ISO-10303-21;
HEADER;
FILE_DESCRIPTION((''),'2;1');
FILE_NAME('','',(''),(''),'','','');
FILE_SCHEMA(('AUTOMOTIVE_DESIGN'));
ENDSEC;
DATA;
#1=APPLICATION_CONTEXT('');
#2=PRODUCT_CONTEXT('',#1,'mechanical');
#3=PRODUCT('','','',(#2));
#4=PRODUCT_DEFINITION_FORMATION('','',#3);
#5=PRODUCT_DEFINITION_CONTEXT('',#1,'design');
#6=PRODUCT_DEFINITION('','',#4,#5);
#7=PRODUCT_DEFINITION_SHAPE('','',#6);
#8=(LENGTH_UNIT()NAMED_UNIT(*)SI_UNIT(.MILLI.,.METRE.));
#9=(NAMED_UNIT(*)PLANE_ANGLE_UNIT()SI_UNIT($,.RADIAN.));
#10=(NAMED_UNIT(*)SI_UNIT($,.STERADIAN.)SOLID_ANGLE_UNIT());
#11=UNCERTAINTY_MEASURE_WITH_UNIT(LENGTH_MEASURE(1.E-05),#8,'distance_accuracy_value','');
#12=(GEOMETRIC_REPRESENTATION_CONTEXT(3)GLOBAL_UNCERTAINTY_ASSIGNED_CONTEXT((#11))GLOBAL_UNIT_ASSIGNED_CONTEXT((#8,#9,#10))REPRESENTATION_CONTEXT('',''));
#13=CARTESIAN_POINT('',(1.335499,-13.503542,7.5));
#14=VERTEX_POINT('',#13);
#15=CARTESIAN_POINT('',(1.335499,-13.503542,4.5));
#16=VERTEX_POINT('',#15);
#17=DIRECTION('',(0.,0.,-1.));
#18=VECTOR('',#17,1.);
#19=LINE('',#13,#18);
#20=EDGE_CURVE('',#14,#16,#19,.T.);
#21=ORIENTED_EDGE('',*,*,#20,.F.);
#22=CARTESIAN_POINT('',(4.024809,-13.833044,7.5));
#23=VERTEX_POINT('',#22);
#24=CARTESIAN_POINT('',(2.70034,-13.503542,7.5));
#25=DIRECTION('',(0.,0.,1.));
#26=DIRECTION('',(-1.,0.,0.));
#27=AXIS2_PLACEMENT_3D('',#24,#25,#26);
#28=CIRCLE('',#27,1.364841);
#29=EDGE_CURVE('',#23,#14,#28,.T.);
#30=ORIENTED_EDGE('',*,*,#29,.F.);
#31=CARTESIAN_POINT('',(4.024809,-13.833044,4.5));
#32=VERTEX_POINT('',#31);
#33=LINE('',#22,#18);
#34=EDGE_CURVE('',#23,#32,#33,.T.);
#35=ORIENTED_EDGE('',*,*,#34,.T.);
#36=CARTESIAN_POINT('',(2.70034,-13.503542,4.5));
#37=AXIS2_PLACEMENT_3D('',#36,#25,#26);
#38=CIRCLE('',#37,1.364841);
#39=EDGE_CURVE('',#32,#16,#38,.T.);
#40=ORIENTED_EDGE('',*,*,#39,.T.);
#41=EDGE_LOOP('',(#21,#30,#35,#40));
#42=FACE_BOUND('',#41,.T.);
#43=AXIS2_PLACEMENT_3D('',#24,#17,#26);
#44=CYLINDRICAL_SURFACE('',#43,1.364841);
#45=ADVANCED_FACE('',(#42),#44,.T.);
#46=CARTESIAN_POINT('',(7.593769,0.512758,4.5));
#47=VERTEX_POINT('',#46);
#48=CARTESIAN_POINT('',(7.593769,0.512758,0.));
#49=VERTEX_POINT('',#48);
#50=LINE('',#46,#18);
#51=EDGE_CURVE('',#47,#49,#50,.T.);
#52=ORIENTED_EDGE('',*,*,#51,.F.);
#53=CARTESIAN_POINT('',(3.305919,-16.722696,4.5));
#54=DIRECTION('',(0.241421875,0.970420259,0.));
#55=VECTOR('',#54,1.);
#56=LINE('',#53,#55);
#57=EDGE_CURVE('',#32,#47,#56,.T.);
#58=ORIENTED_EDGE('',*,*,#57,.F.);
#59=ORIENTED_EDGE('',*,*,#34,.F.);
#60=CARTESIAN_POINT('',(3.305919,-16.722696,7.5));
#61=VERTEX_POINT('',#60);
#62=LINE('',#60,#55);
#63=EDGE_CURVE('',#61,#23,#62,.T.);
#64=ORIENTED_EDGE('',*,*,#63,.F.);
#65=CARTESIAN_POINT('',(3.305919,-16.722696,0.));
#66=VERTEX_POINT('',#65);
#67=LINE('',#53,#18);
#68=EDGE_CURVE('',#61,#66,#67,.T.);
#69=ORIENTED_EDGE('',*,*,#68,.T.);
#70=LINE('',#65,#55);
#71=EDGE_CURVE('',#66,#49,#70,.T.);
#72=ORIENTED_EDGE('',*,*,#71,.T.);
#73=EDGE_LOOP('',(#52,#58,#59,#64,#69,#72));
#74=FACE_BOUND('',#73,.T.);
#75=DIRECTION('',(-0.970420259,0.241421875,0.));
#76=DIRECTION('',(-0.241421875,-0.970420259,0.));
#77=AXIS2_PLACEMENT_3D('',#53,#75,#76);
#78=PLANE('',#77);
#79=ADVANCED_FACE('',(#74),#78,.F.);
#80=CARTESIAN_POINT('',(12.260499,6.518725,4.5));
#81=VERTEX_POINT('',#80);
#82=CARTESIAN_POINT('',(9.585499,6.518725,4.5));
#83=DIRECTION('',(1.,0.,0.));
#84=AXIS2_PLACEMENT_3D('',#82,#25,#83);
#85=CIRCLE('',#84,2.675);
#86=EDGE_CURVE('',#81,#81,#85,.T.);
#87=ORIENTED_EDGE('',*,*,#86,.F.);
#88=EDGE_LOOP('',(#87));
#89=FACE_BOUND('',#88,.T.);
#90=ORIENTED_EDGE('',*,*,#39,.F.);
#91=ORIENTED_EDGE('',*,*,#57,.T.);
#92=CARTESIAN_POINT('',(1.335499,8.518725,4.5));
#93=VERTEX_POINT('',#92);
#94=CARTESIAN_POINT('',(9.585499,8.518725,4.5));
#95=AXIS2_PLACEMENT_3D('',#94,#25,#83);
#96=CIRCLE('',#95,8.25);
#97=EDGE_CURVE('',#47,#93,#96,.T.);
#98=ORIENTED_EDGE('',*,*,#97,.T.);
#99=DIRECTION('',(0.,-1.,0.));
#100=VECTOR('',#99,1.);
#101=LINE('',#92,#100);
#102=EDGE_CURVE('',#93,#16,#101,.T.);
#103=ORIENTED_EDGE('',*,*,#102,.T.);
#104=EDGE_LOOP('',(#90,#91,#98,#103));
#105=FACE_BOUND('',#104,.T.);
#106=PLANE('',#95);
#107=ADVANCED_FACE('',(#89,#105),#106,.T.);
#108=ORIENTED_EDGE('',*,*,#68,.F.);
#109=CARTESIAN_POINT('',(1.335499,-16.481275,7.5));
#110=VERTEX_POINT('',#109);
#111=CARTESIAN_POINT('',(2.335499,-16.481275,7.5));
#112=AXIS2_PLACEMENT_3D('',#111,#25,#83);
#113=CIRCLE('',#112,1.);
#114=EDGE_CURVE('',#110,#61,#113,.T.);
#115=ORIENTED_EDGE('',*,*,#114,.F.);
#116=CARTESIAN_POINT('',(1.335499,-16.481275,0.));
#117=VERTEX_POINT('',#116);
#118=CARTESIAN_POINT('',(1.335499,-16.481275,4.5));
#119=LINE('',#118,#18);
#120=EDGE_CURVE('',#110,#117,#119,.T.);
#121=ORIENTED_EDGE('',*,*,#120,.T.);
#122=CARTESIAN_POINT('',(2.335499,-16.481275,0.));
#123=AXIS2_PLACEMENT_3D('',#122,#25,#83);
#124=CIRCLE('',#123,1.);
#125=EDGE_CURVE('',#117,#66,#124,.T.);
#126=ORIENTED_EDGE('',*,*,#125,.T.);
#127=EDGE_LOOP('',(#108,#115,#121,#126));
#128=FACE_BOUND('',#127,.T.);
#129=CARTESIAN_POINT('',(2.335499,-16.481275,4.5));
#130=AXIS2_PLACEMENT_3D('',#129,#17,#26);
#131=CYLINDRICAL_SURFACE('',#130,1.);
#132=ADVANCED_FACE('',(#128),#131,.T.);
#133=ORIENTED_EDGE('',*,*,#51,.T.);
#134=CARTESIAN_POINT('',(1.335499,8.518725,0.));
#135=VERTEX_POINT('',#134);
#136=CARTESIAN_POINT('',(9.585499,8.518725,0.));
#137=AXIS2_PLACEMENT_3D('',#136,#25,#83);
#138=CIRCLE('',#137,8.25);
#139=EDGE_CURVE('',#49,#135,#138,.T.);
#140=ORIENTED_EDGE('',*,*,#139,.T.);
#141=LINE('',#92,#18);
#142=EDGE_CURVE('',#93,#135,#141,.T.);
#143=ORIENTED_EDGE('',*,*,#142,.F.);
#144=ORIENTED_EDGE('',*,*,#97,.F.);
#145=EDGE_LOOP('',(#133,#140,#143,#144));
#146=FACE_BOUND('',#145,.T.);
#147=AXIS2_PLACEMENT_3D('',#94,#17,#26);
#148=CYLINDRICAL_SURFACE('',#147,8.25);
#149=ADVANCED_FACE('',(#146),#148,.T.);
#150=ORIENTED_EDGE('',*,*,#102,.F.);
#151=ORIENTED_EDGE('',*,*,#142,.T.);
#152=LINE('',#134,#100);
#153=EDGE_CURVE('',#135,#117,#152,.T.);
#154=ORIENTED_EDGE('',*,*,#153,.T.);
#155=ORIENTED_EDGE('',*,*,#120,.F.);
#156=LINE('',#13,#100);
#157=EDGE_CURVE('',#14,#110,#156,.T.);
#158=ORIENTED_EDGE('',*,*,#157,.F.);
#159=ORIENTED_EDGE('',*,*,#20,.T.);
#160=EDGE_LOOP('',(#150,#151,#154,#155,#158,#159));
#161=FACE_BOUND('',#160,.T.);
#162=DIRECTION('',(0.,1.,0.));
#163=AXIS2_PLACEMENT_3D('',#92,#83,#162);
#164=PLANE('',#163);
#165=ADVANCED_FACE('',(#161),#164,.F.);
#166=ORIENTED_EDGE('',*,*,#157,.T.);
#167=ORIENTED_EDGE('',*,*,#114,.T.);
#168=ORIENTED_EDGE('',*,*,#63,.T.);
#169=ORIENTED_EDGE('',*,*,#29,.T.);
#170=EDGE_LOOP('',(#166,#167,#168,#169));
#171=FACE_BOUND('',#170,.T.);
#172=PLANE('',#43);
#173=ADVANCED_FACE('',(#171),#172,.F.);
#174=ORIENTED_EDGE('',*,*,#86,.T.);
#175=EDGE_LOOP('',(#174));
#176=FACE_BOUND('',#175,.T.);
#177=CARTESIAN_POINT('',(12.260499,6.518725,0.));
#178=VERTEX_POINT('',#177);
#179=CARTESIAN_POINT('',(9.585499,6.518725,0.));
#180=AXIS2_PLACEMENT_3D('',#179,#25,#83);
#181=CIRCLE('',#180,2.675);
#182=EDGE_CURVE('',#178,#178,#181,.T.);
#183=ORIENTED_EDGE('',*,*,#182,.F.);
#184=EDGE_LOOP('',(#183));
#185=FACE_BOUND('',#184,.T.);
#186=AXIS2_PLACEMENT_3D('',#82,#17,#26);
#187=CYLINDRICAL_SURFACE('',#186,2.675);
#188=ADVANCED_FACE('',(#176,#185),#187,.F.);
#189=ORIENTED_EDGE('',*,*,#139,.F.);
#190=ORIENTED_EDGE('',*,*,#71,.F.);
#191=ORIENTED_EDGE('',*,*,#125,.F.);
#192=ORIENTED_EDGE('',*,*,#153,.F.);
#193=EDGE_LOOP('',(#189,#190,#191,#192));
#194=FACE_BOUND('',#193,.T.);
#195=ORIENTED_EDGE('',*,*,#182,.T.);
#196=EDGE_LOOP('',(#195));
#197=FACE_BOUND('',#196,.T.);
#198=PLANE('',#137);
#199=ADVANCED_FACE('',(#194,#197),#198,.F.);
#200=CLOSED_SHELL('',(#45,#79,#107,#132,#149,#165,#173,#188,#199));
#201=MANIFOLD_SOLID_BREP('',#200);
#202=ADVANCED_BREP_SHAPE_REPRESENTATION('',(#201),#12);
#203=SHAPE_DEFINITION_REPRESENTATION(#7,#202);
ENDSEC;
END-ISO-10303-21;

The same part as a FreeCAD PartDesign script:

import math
import FreeCAD as App
import Part
import Sketcher

V = App.Vector

doc = App.newDocument("Part")
body = doc.addObject("PartDesign::Body", "Body")

# Sketch on XY plane
sketch1 = body.newObject("Sketcher::SketchObject", "Sketch")
sketch1.AttachmentSupport = (doc.getObject("XY_Plane"), [""])
sketch1.MapMode = "FlatFace"
sketch1.addGeometry([
    Part.LineSegment(V(1.3, 8.5, 0), V(1.3, -16.5, 0)),  # 0
    Part.ArcOfCircle(Part.Circle(V(2.3, -16.5, 0), V(0, 0, 1), 1), math.radians(180), math.radians(346)),  # 1
    Part.LineSegment(V(3.3, -16.7, 0), V(7.6, 0.5, 0)),  # 2
    Part.ArcOfCircle(Part.Circle(V(9.6, 8.5, 0), V(0, 0, 1), 8.2), math.radians(-104), math.radians(180)),  # 3
    Part.Circle(V(9.6, 6.5, 0), V(0, 0, 1), 2.7),  # 4
], False)
sketch1.addConstraint([
    Sketcher.Constraint("Tangent", 0, 2, 1, 1),
    Sketcher.Constraint("Tangent", 1, 2, 2, 1),
    Sketcher.Constraint("Coincident", 2, 2, 3, 1),
    Sketcher.Constraint("Tangent", 3, 2, 0, 1),
    Sketcher.Constraint("Vertical", 0),
    Sketcher.Constraint("Vertical", 3, 3, 4, 3),
    Sketcher.Constraint("Radius", 1, 1.0),
    Sketcher.Constraint("Diameter", 4, 5.35),
    Sketcher.Constraint("DistanceY", 0, 2, 0, 1, 25.0),
    Sketcher.Constraint("Radius", 3, 8.25),
    Sketcher.Constraint("DistanceY", 4, 3, 3, 3, 2.0),
    Sketcher.Constraint("DistanceX", -1, 1, 1, 3, 2.335499),
    Sketcher.Constraint("DistanceX", -1, 1, 1, 2, 3.305919),
    Sketcher.Constraint("DistanceY", -1, 1, 2, 2, 0.512758),
])
pad1 = body.newObject("PartDesign::Pad", "Pad")
pad1.Profile = sketch1
pad1.Length = 4.5

# Sketch on XY plane
sketch2 = body.newObject("Sketcher::SketchObject", "Sketch001")
sketch2.AttachmentSupport = (doc.getObject("XY_Plane"), [""])
sketch2.MapMode = "FlatFace"
sketch2.AttachmentOffset = App.Placement(V(0, 0, 4.5), App.Rotation())
sketch2.addGeometry([
    Part.LineSegment(V(1.3, -13.5, 0), V(1.3, -16.5, 0)),
    Part.ArcOfCircle(Part.Circle(V(2.3, -16.5, 0), V(0, 0, 1), 1), math.radians(180), math.radians(346)),
    Part.LineSegment(V(3.3, -16.7, 0), V(4, -13.8, 0)),
    Part.ArcOfCircle(Part.Circle(V(2.7, -13.5, 0), V(0, 0, 1), 1.4), math.radians(-14), math.radians(180)),
], False)
sketch2.addConstraint([
    Sketcher.Constraint("Tangent", 0, 2, 1, 1),
    Sketcher.Constraint("Tangent", 1, 2, 2, 1),
    Sketcher.Constraint("Tangent", 2, 2, 3, 1),
    Sketcher.Constraint("Tangent", 3, 2, 0, 1),
    Sketcher.Constraint("Vertical", 0),
    Sketcher.Constraint("Radius", 1, 1.0),
    Sketcher.Constraint("Radius", 3, 1.364841),
    Sketcher.Constraint("DistanceX", -1, 1, 1, 3, 2.335499),
    Sketcher.Constraint("DistanceY", 0, 2, 0, 1, 2.977733),
    Sketcher.Constraint("DistanceY", 3, 3, -1, 1, 13.503542),
])
pad2 = body.newObject("PartDesign::Pad", "Pad001")
pad2.Profile = sketch2
pad2.Length = 3

doc.recompute()
